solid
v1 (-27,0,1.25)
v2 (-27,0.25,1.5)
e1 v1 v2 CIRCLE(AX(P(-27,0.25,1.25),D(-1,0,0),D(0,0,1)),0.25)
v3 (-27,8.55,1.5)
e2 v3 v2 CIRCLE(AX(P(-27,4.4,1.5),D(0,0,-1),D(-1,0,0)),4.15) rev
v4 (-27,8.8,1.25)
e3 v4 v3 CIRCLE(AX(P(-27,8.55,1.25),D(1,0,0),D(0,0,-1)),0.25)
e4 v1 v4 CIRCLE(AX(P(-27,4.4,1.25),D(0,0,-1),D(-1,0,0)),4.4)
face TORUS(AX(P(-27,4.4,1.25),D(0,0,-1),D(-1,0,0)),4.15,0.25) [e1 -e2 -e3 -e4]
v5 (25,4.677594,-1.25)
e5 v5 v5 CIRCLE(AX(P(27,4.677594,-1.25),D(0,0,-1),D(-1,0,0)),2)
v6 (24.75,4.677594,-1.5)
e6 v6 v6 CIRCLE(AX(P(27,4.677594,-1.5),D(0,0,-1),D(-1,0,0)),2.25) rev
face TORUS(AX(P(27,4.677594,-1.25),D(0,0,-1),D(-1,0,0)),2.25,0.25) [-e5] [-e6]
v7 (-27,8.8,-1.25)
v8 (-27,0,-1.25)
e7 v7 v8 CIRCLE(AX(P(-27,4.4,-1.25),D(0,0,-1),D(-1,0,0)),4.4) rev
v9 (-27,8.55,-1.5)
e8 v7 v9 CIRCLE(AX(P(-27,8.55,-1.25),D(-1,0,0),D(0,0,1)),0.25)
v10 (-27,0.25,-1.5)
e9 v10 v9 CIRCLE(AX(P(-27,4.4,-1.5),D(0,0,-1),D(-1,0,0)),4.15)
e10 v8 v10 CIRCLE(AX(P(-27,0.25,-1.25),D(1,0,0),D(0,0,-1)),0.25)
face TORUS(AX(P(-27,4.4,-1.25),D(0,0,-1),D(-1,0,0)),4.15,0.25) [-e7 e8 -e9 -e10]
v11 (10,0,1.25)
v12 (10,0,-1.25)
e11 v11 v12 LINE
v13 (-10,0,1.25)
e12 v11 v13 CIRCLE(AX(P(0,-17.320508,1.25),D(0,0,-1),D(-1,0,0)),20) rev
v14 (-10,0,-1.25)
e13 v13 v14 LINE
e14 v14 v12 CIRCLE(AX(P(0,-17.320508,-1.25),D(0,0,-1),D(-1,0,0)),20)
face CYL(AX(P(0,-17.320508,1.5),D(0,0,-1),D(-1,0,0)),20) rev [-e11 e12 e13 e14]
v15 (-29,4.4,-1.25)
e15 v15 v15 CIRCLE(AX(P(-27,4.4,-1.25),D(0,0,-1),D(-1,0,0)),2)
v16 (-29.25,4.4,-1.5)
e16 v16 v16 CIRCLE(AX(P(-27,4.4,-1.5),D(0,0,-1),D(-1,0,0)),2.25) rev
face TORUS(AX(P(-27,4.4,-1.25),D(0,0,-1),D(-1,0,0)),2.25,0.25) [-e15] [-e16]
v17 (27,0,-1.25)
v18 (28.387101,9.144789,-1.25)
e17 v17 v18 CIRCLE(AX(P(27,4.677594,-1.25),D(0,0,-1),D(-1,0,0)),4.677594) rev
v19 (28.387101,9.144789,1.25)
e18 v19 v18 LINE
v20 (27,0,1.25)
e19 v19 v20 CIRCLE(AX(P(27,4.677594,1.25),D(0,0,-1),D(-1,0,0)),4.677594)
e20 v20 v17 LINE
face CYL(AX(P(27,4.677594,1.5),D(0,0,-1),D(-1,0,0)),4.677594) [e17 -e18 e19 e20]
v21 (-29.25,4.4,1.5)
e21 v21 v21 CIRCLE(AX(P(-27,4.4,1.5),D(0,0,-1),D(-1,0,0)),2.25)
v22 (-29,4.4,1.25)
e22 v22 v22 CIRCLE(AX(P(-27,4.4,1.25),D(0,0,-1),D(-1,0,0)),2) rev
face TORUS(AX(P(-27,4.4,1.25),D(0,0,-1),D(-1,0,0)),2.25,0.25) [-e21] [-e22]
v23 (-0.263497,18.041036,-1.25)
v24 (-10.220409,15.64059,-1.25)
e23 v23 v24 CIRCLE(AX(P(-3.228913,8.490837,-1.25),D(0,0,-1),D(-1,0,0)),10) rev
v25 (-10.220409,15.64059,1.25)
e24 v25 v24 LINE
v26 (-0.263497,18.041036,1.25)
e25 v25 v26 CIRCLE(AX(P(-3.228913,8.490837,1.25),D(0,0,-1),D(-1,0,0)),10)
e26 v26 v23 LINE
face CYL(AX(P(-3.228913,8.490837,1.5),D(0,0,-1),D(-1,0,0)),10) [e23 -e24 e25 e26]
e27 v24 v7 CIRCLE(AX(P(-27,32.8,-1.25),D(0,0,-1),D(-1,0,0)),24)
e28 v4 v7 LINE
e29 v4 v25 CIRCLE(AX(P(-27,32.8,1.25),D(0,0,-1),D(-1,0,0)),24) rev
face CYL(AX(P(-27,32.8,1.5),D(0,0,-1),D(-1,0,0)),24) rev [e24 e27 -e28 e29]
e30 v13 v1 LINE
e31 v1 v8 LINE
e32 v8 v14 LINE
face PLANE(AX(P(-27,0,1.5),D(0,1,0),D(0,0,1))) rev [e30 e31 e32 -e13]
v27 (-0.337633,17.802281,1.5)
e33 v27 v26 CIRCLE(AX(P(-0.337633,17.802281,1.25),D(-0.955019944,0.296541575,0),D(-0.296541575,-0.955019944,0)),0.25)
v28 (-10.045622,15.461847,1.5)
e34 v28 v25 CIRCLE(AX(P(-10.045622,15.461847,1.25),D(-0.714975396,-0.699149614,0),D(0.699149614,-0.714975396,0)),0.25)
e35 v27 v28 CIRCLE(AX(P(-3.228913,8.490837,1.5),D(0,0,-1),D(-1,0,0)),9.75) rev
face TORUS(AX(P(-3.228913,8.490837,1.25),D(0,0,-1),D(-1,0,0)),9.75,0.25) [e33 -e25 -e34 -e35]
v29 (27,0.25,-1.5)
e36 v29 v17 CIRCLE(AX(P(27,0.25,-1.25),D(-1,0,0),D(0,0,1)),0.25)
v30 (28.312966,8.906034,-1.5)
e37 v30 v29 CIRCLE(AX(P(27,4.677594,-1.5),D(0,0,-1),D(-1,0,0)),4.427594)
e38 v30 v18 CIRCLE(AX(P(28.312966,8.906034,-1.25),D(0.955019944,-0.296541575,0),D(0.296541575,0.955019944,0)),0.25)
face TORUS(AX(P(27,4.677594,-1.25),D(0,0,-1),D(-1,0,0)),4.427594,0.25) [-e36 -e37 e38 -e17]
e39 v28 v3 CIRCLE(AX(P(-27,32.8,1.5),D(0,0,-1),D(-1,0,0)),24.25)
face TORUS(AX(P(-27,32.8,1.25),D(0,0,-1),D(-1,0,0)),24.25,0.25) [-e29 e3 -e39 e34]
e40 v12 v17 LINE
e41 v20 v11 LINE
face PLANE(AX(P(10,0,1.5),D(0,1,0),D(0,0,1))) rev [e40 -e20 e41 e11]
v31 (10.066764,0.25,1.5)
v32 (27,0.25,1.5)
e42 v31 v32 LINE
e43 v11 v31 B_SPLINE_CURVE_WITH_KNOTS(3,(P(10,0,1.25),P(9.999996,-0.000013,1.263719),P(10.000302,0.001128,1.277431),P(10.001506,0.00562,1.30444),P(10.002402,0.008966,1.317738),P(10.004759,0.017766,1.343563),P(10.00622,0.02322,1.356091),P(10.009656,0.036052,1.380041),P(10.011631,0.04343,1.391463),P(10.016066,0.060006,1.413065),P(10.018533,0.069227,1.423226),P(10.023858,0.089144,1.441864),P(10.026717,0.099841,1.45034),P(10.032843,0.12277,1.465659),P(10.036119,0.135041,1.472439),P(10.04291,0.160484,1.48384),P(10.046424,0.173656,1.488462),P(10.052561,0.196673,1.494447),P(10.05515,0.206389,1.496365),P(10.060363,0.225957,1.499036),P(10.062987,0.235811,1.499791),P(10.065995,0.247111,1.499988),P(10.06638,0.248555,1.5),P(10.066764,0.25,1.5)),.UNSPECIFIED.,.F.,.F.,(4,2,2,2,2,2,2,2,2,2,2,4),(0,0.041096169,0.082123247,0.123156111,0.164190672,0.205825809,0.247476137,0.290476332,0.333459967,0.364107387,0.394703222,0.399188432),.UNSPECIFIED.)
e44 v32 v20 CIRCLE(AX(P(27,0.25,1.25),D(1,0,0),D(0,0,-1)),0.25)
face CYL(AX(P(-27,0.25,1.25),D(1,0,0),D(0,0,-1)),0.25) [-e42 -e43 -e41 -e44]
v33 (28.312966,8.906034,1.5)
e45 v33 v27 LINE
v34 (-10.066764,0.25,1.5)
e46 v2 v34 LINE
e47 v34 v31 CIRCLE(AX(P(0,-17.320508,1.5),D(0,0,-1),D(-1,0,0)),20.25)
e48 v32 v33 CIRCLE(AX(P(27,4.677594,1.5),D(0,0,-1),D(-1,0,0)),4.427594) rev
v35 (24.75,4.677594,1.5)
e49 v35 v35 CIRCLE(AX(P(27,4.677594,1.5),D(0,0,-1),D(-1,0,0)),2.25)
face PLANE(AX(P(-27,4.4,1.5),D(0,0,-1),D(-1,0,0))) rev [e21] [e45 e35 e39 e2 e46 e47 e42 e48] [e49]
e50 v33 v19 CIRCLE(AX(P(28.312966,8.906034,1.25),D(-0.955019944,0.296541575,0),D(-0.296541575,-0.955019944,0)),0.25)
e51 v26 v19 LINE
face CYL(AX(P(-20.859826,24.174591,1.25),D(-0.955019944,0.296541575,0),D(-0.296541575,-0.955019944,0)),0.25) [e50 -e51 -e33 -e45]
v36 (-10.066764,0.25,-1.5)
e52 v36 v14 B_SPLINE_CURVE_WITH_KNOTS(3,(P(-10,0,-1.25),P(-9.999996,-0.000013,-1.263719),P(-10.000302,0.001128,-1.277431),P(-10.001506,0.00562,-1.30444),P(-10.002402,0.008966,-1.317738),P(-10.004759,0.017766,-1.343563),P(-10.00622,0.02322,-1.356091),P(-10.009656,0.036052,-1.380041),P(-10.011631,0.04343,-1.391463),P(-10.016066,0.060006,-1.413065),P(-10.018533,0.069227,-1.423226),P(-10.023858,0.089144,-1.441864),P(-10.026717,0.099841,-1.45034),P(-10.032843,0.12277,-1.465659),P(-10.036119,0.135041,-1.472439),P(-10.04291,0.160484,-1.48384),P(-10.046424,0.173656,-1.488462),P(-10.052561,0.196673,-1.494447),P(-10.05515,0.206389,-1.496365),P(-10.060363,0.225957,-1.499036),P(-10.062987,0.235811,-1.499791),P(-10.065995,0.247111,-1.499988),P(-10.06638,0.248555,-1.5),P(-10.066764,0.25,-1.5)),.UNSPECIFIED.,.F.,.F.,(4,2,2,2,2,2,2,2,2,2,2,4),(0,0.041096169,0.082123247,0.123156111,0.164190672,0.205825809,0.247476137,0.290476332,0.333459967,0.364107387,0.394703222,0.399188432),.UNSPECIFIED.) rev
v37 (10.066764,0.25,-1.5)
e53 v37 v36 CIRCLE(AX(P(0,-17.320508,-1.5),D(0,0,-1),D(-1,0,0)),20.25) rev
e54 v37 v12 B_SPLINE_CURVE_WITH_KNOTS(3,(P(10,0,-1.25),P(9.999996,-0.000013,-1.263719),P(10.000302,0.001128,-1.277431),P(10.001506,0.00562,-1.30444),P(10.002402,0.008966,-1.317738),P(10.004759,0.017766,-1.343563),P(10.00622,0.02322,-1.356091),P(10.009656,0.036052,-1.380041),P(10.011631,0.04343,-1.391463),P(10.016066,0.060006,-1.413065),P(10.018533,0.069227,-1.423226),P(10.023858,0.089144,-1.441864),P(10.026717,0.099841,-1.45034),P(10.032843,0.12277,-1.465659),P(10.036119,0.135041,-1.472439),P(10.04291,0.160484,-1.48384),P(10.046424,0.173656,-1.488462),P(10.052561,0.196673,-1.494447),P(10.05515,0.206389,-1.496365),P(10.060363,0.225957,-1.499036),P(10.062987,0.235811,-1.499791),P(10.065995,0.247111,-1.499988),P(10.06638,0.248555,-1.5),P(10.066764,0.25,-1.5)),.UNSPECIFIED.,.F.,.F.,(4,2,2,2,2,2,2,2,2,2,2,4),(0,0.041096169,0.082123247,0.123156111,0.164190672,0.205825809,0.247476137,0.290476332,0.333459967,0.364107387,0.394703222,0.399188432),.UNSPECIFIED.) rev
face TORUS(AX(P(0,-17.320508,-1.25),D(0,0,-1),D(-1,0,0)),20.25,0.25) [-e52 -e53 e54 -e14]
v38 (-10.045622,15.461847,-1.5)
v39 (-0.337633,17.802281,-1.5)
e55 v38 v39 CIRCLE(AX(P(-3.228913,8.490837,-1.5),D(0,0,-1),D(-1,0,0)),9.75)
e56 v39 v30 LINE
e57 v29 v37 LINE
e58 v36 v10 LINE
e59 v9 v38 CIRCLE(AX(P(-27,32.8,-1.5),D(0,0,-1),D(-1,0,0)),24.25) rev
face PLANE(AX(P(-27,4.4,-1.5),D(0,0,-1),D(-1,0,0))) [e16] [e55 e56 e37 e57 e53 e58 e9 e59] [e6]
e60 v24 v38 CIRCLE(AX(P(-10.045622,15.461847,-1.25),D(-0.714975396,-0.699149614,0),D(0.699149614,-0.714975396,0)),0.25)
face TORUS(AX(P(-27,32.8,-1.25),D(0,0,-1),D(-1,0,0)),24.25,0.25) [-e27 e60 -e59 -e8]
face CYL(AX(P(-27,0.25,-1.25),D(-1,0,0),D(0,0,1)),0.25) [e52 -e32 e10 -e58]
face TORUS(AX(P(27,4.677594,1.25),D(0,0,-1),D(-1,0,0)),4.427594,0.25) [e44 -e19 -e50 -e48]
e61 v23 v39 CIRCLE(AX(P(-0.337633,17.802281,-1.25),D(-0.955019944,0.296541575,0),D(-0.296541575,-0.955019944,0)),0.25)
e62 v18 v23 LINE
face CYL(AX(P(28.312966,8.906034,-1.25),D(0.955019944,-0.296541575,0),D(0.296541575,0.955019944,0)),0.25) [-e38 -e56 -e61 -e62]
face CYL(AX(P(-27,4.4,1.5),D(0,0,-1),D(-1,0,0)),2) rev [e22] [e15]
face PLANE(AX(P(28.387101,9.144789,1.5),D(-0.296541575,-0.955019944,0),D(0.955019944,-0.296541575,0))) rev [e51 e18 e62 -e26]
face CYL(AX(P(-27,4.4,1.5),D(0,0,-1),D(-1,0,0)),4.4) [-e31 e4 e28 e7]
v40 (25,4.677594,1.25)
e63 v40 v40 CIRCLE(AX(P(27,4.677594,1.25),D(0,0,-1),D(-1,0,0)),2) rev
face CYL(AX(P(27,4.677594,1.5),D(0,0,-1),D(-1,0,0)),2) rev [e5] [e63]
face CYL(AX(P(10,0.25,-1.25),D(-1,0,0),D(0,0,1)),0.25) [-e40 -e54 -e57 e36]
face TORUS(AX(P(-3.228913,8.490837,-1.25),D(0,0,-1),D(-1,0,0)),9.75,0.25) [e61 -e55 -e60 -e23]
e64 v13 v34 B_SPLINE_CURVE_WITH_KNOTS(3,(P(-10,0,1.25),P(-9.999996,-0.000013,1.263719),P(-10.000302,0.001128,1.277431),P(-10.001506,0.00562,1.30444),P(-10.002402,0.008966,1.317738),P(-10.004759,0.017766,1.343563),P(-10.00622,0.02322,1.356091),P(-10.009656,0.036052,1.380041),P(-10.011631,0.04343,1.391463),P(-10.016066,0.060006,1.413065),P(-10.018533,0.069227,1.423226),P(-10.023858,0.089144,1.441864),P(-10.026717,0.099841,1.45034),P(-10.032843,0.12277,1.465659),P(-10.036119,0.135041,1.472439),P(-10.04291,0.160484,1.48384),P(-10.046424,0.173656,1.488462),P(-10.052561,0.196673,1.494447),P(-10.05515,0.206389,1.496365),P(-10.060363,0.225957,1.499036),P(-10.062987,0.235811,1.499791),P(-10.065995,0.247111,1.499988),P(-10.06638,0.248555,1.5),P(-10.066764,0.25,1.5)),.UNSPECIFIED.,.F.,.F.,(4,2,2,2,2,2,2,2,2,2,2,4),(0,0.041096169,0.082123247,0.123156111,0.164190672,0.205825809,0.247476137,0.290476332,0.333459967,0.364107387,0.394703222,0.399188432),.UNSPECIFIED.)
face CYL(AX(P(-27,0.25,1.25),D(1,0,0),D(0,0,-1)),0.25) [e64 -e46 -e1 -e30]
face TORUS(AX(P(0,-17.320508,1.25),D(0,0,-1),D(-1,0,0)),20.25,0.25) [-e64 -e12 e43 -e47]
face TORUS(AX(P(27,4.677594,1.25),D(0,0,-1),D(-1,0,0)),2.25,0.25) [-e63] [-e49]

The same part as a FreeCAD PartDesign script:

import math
import FreeCAD as App
import Part
import Sketcher

V = App.Vector
Q = App.Units.Quantity


def edges_at(feature, points):
    """Names of the edges that pass closest to the given points."""
    edges = feature.Shape.Edges
    near = lambda p: min(range(len(edges)), key=lambda i: edges[i].distToShape(Part.Vertex(*p))[0])
    return sorted({f"Edge{near(p) + 1}" for p in points})

doc = App.newDocument("Part")
body = doc.addObject("PartDesign::Body", "Body")

sketch1 = doc.addObject("Sketcher::SketchObject", "Sketch")
body.addObject(sketch1)
sketch1.AttachmentSupport = (doc.XY_Plane, [""])
sketch1.MapMode = "FlatFace"
sketch1.addGeometry([
    Part.LineSegment(V(-27, 0, 0), V(-10, 0, 0)),
    Part.ArcOfCircle(Part.Circle(V(0, -17.3, 0), V(0, 0, 1), 20), math.radians(60), math.radians(120)),
    Part.LineSegment(V(10, 0, 0), V(27, 0, 0)),
    Part.ArcOfCircle(Part.Circle(V(27, 4.7, 0), V(0, 0, 1), 4.7), math.radians(-90), math.radians(73)),
    Part.LineSegment(V(28.4, 9.1, 0), V(-0.3, 18, 0)),
    Part.ArcOfCircle(Part.Circle(V(-3.2, 8.5, 0), V(0, 0, 1), 10), math.radians(73), math.radians(134)),
    Part.ArcOfCircle(Part.Circle(V(-27, 32.8, 0), V(0, 0, 1), 24), math.radians(-90), math.radians(-46)),
    Part.ArcOfCircle(Part.Circle(V(-27, 4.4, 0), V(0, 0, 1), 4.4), math.radians(90), math.radians(270)),
    Part.Circle(V(-27, 4.4, 0), V(0, 0, 1), 2),
    Part.Circle(V(27, 4.7, 0), V(0, 0, 1), 2),
], False)
sketch1.addConstraint([
    Sketcher.Constraint("Coincident", 0, 2, 1, 2),
    Sketcher.Constraint("Coincident", 1, 1, 2, 1),
    Sketcher.Constraint("Tangent", 2, 2, 3, 1),
    Sketcher.Constraint("Tangent", 3, 2, 4, 1),
    Sketcher.Constraint("Tangent", 4, 2, 5, 1),
    Sketcher.Constraint("Tangent", 5, 2, 6, 2),
    Sketcher.Constraint("Tangent", 6, 1, 7, 1),
    Sketcher.Constraint("Tangent", 7, 2, 0, 1),
    Sketcher.Constraint("Horizontal", 0),
    Sketcher.Constraint("Horizontal", 2),
    Sketcher.Constraint("Coincident", 8, 3, 7, 3),
    Sketcher.Constraint("Coincident", 9, 3, 3, 3),
    Sketcher.Constraint("Equal", 8, 9),
    Sketcher.Constraint("Symmetric", 0, 2, 1, 1, -1, 1),
    Sketcher.Constraint("Symmetric", 2, 2, 7, 2, -2),
    Sketcher.Constraint("Vertical", 6, 3, 7, 3),
    Sketcher.Constraint("Diameter", 8, 4.0),
    Sketcher.Constraint("Radius", 1, 20.0),
    Sketcher.Constraint("Radius", 5, 10.0),
    Sketcher.Constraint("Radius", 6, 24.0),
    Sketcher.Constraint("Radius", 7, 4.4),
    Sketcher.Constraint("DistanceX", 0, 1, 0, 2, 17.0),
    Sketcher.Constraint("Distance", 4, 30.0),
    Sketcher.Constraint("DistanceX", -1, 1, 3, 3, 27.0),
    Sketcher.Constraint("Angle", 4, Q("162.75 deg")),
])
pad1 = doc.addObject("PartDesign::Pad", "Pad")
body.addObject(pad1)
pad1.Profile = sketch1
pad1.Length = 3
pad1.Midplane = True
doc.recompute()

fillet = doc.addObject("PartDesign::Fillet", "Fillet")
body.addObject(fillet)
fillet.Base = (pad1, edges_at(pad1, [
    (0, 2.679, 1.5),
    (-18.5, 0, -1.5),
    (-31.4, 4.4, -1.5),
    (18.5, 0, 1.5),
    (31.625, 3.976, 1.5),
    (14.062, 13.593, 1.5),
    (-29, 4.4, -1.5),
    (-29, 4.4, 1.5),
    (-5.573, 18.212, 1.5),
    (25, 4.678, -1.5),
    (25, 4.678, 1.5),
    (-17.94, 10.576, 1.5),
    (-31.4, 4.4, 1.5),
    (-18.5, 0, 1.5),
    (-17.94, 10.576, -1.5),
    (-5.573, 18.212, -1.5),
    (14.062, 13.593, -1.5),
    (31.625, 3.976, -1.5),
    (18.5, 0, -1.5),
    (0, 2.679, -1.5),
]))
fillet.Radius = 0.25

doc.recompute()
